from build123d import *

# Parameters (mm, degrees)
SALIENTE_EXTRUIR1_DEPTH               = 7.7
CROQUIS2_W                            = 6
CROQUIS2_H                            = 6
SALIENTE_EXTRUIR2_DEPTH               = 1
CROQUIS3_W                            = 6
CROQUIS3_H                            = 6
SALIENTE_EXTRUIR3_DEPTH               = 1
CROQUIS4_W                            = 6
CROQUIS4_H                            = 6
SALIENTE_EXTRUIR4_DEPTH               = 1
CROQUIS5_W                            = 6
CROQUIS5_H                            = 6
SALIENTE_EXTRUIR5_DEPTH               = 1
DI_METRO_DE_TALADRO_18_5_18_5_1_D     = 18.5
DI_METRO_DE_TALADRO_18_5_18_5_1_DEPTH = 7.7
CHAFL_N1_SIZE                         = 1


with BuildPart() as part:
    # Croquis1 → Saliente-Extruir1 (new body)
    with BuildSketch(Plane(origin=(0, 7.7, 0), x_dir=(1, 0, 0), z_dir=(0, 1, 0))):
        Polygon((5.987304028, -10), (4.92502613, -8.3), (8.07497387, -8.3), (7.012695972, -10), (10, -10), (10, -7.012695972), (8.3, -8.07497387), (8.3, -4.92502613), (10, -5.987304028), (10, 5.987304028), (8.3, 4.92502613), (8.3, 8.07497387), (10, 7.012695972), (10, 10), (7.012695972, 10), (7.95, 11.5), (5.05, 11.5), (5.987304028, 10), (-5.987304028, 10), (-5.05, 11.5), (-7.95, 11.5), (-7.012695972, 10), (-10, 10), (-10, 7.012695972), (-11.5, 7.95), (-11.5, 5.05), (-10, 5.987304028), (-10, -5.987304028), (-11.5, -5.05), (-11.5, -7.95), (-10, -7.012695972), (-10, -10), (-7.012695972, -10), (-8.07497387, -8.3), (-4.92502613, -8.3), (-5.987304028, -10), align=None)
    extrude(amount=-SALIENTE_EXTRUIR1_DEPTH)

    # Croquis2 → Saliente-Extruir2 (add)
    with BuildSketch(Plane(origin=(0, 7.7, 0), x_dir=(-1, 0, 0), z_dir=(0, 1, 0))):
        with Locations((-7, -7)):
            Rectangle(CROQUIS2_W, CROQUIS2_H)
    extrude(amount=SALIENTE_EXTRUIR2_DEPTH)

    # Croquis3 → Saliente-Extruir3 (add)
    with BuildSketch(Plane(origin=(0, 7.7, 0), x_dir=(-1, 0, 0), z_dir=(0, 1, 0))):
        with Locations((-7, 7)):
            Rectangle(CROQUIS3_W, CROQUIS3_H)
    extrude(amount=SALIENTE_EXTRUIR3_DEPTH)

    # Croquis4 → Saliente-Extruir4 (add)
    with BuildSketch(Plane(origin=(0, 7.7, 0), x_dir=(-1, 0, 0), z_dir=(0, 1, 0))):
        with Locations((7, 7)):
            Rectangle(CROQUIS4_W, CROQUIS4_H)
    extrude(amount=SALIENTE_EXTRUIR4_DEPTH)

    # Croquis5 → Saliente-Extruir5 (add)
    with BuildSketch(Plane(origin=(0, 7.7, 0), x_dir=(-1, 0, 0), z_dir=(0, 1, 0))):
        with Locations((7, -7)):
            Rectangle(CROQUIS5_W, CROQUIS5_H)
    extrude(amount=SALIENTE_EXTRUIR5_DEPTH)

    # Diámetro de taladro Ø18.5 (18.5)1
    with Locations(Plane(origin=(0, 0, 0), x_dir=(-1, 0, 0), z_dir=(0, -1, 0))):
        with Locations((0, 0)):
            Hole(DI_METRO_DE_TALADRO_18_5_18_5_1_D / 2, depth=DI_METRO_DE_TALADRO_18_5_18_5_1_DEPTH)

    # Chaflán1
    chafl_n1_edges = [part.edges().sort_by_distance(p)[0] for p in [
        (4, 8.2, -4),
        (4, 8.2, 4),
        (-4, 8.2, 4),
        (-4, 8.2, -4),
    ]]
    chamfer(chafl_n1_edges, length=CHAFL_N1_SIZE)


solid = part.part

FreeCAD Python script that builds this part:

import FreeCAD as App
import Part
import Sketcher

V = App.Vector
Q = App.Units.Quantity


def edges_at(feature, points):
    """Names of the edges that pass closest to the given points."""
    edges = feature.Shape.Edges
    near = lambda p: min(range(len(edges)), key=lambda i: edges[i].distToShape(Part.Vertex(*p))[0])
    return sorted({f"Edge{near(p) + 1}" for p in points})

doc = App.newDocument("Part")
body = doc.addObject("PartDesign::Body", "Body")

# Sketch on XZ plane
sketch1 = doc.addObject("Sketcher::SketchObject", "Sketch")
body.addObject(sketch1)
sketch1.AttachmentSupport = (doc.XZ_Plane, [""])
sketch1.MapMode = "FlatFace"
sketch1.AttachmentOffset = App.Placement(V(0, 0, -7.7), App.Rotation())
sketch1.addGeometry([
    Part.LineSegment(V(6, 10, 0), V(4.9, 8.3, 0)),  # 0
    Part.LineSegment(V(4.9, 8.3, 0), V(8.1, 8.3, 0)),  # 1
    Part.LineSegment(V(8.1, 8.3, 0), V(7, 10, 0)),  # 2
    Part.LineSegment(V(7, 10, 0), V(10, 10, 0)),  # 3
    Part.LineSegment(V(10, 10, 0), V(10, 7, 0)),  # 4
    Part.LineSegment(V(10, 7, 0), V(8.3, 8.1, 0)),  # 5
    Part.LineSegment(V(8.3, 8.1, 0), V(8.3, 4.9, 0)),  # 6
    Part.LineSegment(V(8.3, 4.9, 0), V(10, 6, 0)),  # 7
    Part.LineSegment(V(10, 6, 0), V(10, -6, 0)),  # 8
    Part.LineSegment(V(10, -6, 0), V(8.3, -4.9, 0)),  # 9
    Part.LineSegment(V(8.3, -4.9, 0), V(8.3, -8.1, 0)),  # 10
    Part.LineSegment(V(8.3, -8.1, 0), V(10, -7, 0)),  # 11
    Part.LineSegment(V(10, -7, 0), V(10, -10, 0)),  # 12
    Part.LineSegment(V(10, -10, 0), V(7, -10, 0)),  # 13
    Part.LineSegment(V(7, -10, 0), V(8, -11.5, 0)),  # 14
    Part.LineSegment(V(8, -11.5, 0), V(5, -11.5, 0)),  # 15
    Part.LineSegment(V(5, -11.5, 0), V(6, -10, 0)),  # 16
    Part.LineSegment(V(6, -10, 0), V(-6, -10, 0)),  # 17
    Part.LineSegment(V(-6, -10, 0), V(-5, -11.5, 0)),  # 18
    Part.LineSegment(V(-5, -11.5, 0), V(-8, -11.5, 0)),  # 19
    Part.LineSegment(V(-8, -11.5, 0), V(-7, -10, 0)),  # 20
    Part.LineSegment(V(-7, -10, 0), V(-10, -10, 0)),  # 21
    Part.LineSegment(V(-10, -10, 0), V(-10, -7, 0)),  # 22
    Part.LineSegment(V(-10, -7, 0), V(-11.5, -8, 0)),  # 23
    Part.LineSegment(V(-11.5, -8, 0), V(-11.5, -5, 0)),  # 24
    Part.LineSegment(V(-11.5, -5, 0), V(-10, -6, 0)),  # 25
    Part.LineSegment(V(-10, -6, 0), V(-10, 6, 0)),  # 26
    Part.LineSegment(V(-10, 6, 0), V(-11.5, 5, 0)),  # 27
    Part.LineSegment(V(-11.5, 5, 0), V(-11.5, 8, 0)),  # 28
    Part.LineSegment(V(-11.5, 8, 0), V(-10, 7, 0)),  # 29
    Part.LineSegment(V(-10, 7, 0), V(-10, 10, 0)),  # 30
    Part.LineSegment(V(-10, 10, 0), V(-7, 10, 0)),  # 31
    Part.LineSegment(V(-7, 10, 0), V(-8.1, 8.3, 0)),  # 32
    Part.LineSegment(V(-8.1, 8.3, 0), V(-4.9, 8.3, 0)),  # 33
    Part.LineSegment(V(-4.9, 8.3, 0), V(-6, 10, 0)),  # 34
    Part.LineSegment(V(-6, 10, 0), V(6, 10, 0)),  # 35
], False)
sketch1.addConstraint([
    Sketcher.Constraint("Coincident", 0, 2, 1, 1),
    Sketcher.Constraint("Coincident", 1, 2, 2, 1),
    Sketcher.Constraint("Coincident", 2, 2, 3, 1),
    Sketcher.Constraint("Coincident", 3, 2, 4, 1),
    Sketcher.Constraint("Coincident", 4, 2, 5, 1),
    Sketcher.Constraint("Coincident", 5, 2, 6, 1),
    Sketcher.Constraint("Coincident", 6, 2, 7, 1),
    Sketcher.Constraint("Coincident", 7, 2, 8, 1),
    Sketcher.Constraint("Coincident", 8, 2, 9, 1),
    Sketcher.Constraint("Coincident", 9, 2, 10, 1),
    Sketcher.Constraint("Coincident", 10, 2, 11, 1),
    Sketcher.Constraint("Coincident", 11, 2, 12, 1),
    Sketcher.Constraint("Coincident", 12, 2, 13, 1),
    Sketcher.Constraint("Coincident", 13, 2, 14, 1),
    Sketcher.Constraint("Coincident", 14, 2, 15, 1),
    Sketcher.Constraint("Coincident", 15, 2, 16, 1),
    Sketcher.Constraint("Coincident", 16, 2, 17, 1),
    Sketcher.Constraint("Coincident", 17, 2, 18, 1),
    Sketcher.Constraint("Coincident", 18, 2, 19, 1),
    Sketcher.Constraint("Coincident", 19, 2, 20, 1),
    Sketcher.Constraint("Coincident", 20, 2, 21, 1),
    Sketcher.Constraint("Coincident", 21, 2, 22, 1),
    Sketcher.Constraint("Coincident", 22, 2, 23, 1),
    Sketcher.Constraint("Coincident", 23, 2, 24, 1),
    Sketcher.Constraint("Coincident", 24, 2, 25, 1),
    Sketcher.Constraint("Coincident", 25, 2, 26, 1),
    Sketcher.Constraint("Coincident", 26, 2, 27, 1),
    Sketcher.Constraint("Coincident", 27, 2, 28, 1),
    Sketcher.Constraint("Coincident", 28, 2, 29, 1),
    Sketcher.Constraint("Coincident", 29, 2, 30, 1),
    Sketcher.Constraint("Coincident", 30, 2, 31, 1),
    Sketcher.Constraint("Coincident", 31, 2, 32, 1),
    Sketcher.Constraint("Coincident", 32, 2, 33, 1),
    Sketcher.Constraint("Coincident", 33, 2, 34, 1),
    Sketcher.Constraint("Coincident", 34, 2, 35, 1),
    Sketcher.Constraint("Coincident", 35, 2, 0, 1),
    Sketcher.Constraint("Horizontal", 1),
    Sketcher.Constraint("Horizontal", 3),
    Sketcher.Constraint("Vertical", 4),
    Sketcher.Constraint("Vertical", 6),
    Sketcher.Constraint("Vertical", 8),
    Sketcher.Constraint("Vertical", 10),
    Sketcher.Constraint("Vertical", 12),
    Sketcher.Constraint("Horizontal", 13),
    Sketcher.Constraint("Horizontal", 15),
    Sketcher.Constraint("Horizontal", 17),
    Sketcher.Constraint("Horizontal", 19),
    Sketcher.Constraint("Horizontal", 21),
    Sketcher.Constraint("Vertical", 22),
    Sketcher.Constraint("Vertical", 24),
    Sketcher.Constraint("Vertical", 26),
    Sketcher.Constraint("Vertical", 28),
    Sketcher.Constraint("Vertical", 30),
    Sketcher.Constraint("Horizontal", 31),
    Sketcher.Constraint("Horizontal", 33),
    Sketcher.Constraint("Horizontal", 35),
    Sketcher.Constraint("Symmetric", 2, 2, 20, 2, -1, 1),
    Sketcher.Constraint("Symmetric", 4, 2, 22, 2, -1, 1),
    Sketcher.Constraint("Symmetric", 7, 2, 25, 2, -1, 1),
    Sketcher.Constraint("Symmetric", 11, 2, 29, 2, -1, 1),
    Sketcher.Constraint("Symmetric", 13, 2, 31, 2, -1, 1),
    Sketcher.Constraint("Symmetric", 16, 2, 34, 2, -1, 1),
    Sketcher.Constraint("Symmetric", 15, 2, 18, 2, -2),
    Sketcher.Constraint("Symmetric", 13, 2, 20, 2, -2),
    Sketcher.Constraint("Symmetric", 11, 2, 22, 2, -2),
    Sketcher.Constraint("Symmetric", 1, 2, 32, 2, -2),
    Sketcher.Constraint("Symmetric", 6, 2, 9, 2, -1),
    Sketcher.Constraint("Symmetric", 24, 2, 27, 2, -1),
    Sketcher.Constraint("Perpendicular", 0, 5),
    Sketcher.Constraint("Perpendicular", 2, 7),
    Sketcher.Constraint("Parallel", 5, 9),
    Sketcher.Constraint("Parallel", 7, 11),
    Sketcher.Constraint("Perpendicular", 11, 14),
    Sketcher.Constraint("Perpendicular", 9, 16),
    Sketcher.Constraint("Parallel", 14, 18),
    Sketcher.Constraint("Parallel", 16, 20),
    Sketcher.Constraint("Perpendicular", 18, 23),
    Sketcher.Constraint("Perpendicular", 20, 25),
    Sketcher.Constraint("Parallel", 23, 27),
    Sketcher.Constraint("Parallel", 25, 29),
    Sketcher.Constraint("Perpendicular", 29, 32),
    Sketcher.Constraint("Perpendicular", 27, 34),
    Sketcher.Constraint("Horizontal", 13, 2, 16, 2),
    Sketcher.Constraint("Vertical", 4, 2, 7, 2),
    Sketcher.Constraint("Vertical", 16, 2, 35, 2),
    Sketcher.Constraint("Equal", 31, 4),
    Sketcher.Constraint("Equal", 33, 6),
    Sketcher.Constraint("Equal", 35, 8),
    Sketcher.Constraint("Equal", 19, 24),
    Sketcher.Constraint("Equal", 2, 5),
    Sketcher.Constraint("Angle", 0, Q("-122 deg")),
    Sketcher.Constraint("DistanceX", 15, 2, 15, 1, 2.9),
    Sketcher.Constraint("DistanceY", -1, 1, 2, 2, 10.0),
    Sketcher.Constraint("DistanceY", 8, 2, 4, 2, 13.0),
    Sketcher.Constraint("DistanceY", -1, 1, 0, 2, 8.3),
    Sketcher.Constraint("DistanceY", 14, 2, -1, 1, 11.5),
])
pad1 = doc.addObject("PartDesign::Pad", "Pad")
body.addObject(pad1)
pad1.Profile = sketch1
pad1.Length = 7.7

# Sketch on XZ plane
sketch2 = doc.addObject("Sketcher::SketchObject", "Sketch001")
body.addObject(sketch2)
sketch2.AttachmentSupport = (doc.XZ_Plane, [""])
sketch2.MapMode = "FlatFace"
sketch2.AttachmentOffset = App.Placement(V(0, 0, -7.7), App.Rotation())
sketch2.addGeometry([
    Part.LineSegment(V(10, -4, 0), V(10, -10, 0)),
    Part.LineSegment(V(10, -10, 0), V(4, -10, 0)),
    Part.LineSegment(V(4, -10, 0), V(4, -4, 0)),
    Part.LineSegment(V(4, -4, 0), V(10, -4, 0)),
], False)
sketch2.addConstraint([
    Sketcher.Constraint("Coincident", 0, 2, 1, 1),
    Sketcher.Constraint("Coincident", 1, 2, 2, 1),
    Sketcher.Constraint("Coincident", 2, 2, 3, 1),
    Sketcher.Constraint("Coincident", 3, 2, 0, 1),
    Sketcher.Constraint("Vertical", 0),
    Sketcher.Constraint("Horizontal", 1),
    Sketcher.Constraint("Vertical", 2),
    Sketcher.Constraint("Horizontal", 3),
    Sketcher.Constraint("Equal", 3, 0),
    Sketcher.Constraint("DistanceX", 1, 2, 1, 1, 6.0),
    Sketcher.Constraint("DistanceX", -1, 1, 0, 2, 10.0),
    Sketcher.Constraint("DistanceY", 0, 2, -1, 1, 10.0),
])
pad2 = doc.addObject("PartDesign::Pad", "Pad001")
body.addObject(pad2)
pad2.Profile = sketch2
pad2.Length = 1
pad2.Reversed = True

# Sketch on XZ plane
sketch3 = doc.addObject("Sketcher::SketchObject", "Sketch002")
body.addObject(sketch3)
sketch3.AttachmentSupport = (doc.XZ_Plane, [""])
sketch3.MapMode = "FlatFace"
sketch3.AttachmentOffset = App.Placement(V(0, 0, -7.7), App.Rotation())
sketch3.addGeometry([
    Part.LineSegment(V(10, 10, 0), V(10, 4, 0)),
    Part.LineSegment(V(10, 4, 0), V(4, 4, 0)),
    Part.LineSegment(V(4, 4, 0), V(4, 10, 0)),
    Part.LineSegment(V(4, 10, 0), V(10, 10, 0)),
], False)
sketch3.addConstraint([
    Sketcher.Constraint("Coincident", 0, 2, 1, 1),
    Sketcher.Constraint("Coincident", 1, 2, 2, 1),
    Sketcher.Constraint("Coincident", 2, 2, 3, 1),
    Sketcher.Constraint("Coincident", 3, 2, 0, 1),
    Sketcher.Constraint("Vertical", 0),
    Sketcher.Constraint("Horizontal", 1),
    Sketcher.Constraint("Vertical", 2),
    Sketcher.Constraint("Horizontal", 3),
    Sketcher.Constraint("Equal", 3, 0),
    Sketcher.Constraint("DistanceX", 1, 2, 1, 1, 6.0),
    Sketcher.Constraint("DistanceX", -1, 1, 0, 2, 10.0),
    Sketcher.Constraint("DistanceY", -1, 1, 0, 2, 4.0),
])
pad3 = doc.addObject("PartDesign::Pad", "Pad002")
body.addObject(pad3)
pad3.Profile = sketch3
pad3.Length = 1
pad3.Reversed = True

# Sketch on XZ plane
sketch4 = doc.addObject("Sketcher::SketchObject", "Sketch003")
body.addObject(sketch4)
sketch4.AttachmentSupport = (doc.XZ_Plane, [""])
sketch4.MapMode = "FlatFace"
sketch4.AttachmentOffset = App.Placement(V(0, 0, -7.7), App.Rotation())
sketch4.addGeometry([
    Part.LineSegment(V(-4, 10, 0), V(-4, 4, 0)),
    Part.LineSegment(V(-4, 4, 0), V(-10, 4, 0)),
    Part.LineSegment(V(-10, 4, 0), V(-10, 10, 0)),
    Part.LineSegment(V(-10, 10, 0), V(-4, 10, 0)),
], False)
sketch4.addConstraint([
    Sketcher.Constraint("Coincident", 0, 2, 1, 1),
    Sketcher.Constraint("Coincident", 1, 2, 2, 1),
    Sketcher.Constraint("Coincident", 2, 2, 3, 1),
    Sketcher.Constraint("Coincident", 3, 2, 0, 1),
    Sketcher.Constraint("Vertical", 0),
    Sketcher.Constraint("Horizontal", 1),
    Sketcher.Constraint("Vertical", 2),
    Sketcher.Constraint("Horizontal", 3),
    Sketcher.Constraint("Equal", 3, 0),
    Sketcher.Constraint("DistanceX", 1, 2, 1, 1, 6.0),
    Sketcher.Constraint("DistanceX", 0, 2, -1, 1, 4.0),
    Sketcher.Constraint("DistanceY", -1, 1, 0, 2, 4.0),
])
pad4 = doc.addObject("PartDesign::Pad", "Pad003")
body.addObject(pad4)
pad4.Profile = sketch4
pad4.Length = 1
pad4.Reversed = True

# Sketch on XZ plane
sketch5 = doc.addObject("Sketcher::SketchObject", "Sketch004")
body.addObject(sketch5)
sketch5.AttachmentSupport = (doc.XZ_Plane, [""])
sketch5.MapMode = "FlatFace"
sketch5.AttachmentOffset = App.Placement(V(0, 0, -7.7), App.Rotation())
sketch5.addGeometry([
    Part.LineSegment(V(-4, -4, 0), V(-4, -10, 0)),
    Part.LineSegment(V(-4, -10, 0), V(-10, -10, 0)),
    Part.LineSegment(V(-10, -10, 0), V(-10, -4, 0)),
    Part.LineSegment(V(-10, -4, 0), V(-4, -4, 0)),
], False)
sketch5.addConstraint([
    Sketcher.Constraint("Coincident", 0, 2, 1, 1),
    Sketcher.Constraint("Coincident", 1, 2, 2, 1),
    Sketcher.Constraint("Coincident", 2, 2, 3, 1),
    Sketcher.Constraint("Coincident", 3, 2, 0, 1),
    Sketcher.Constraint("Vertical", 0),
    Sketcher.Constraint("Horizontal", 1),
    Sketcher.Constraint("Vertical", 2),
    Sketcher.Constraint("Horizontal", 3),
    Sketcher.Constraint("Equal", 3, 0),
    Sketcher.Constraint("DistanceX", 1, 2, 1, 1, 6.0),
    Sketcher.Constraint("DistanceX", 0, 2, -1, 1, 4.0),
    Sketcher.Constraint("DistanceY", 0, 2, -1, 1, 10.0),
])
pad5 = doc.addObject("PartDesign::Pad", "Pad004")
body.addObject(pad5)
pad5.Profile = sketch5
pad5.Length = 1
pad5.Reversed = True

# Sketch on XZ plane
sketch6 = doc.addObject("Sketcher::SketchObject", "Sketch005")
body.addObject(sketch6)
sketch6.AttachmentSupport = (doc.XZ_Plane, [""])
sketch6.MapMode = "FlatFace"
sketch6.addGeometry(Part.Circle(V(0, 0, 0), V(0, 0, 1), 9), False)
sketch6.addConstraint([
    Sketcher.Constraint("Coincident", 0, 3, -1, 1),
    Sketcher.Constraint("Diameter", 0, 18.5),
])
doc.recompute()
hole = doc.addObject("PartDesign::Hole", "Hole")
body.addObject(hole)
hole.Profile = sketch6
hole.ThreadType = "None"
hole.Diameter = 18.5
hole.DepthType = "Dimension"
hole.Depth = 7.7
hole.DrillPoint = "Flat"
doc.recompute()

chamfer = doc.addObject("PartDesign::Chamfer", "Chamfer")
body.addObject(chamfer)
chamfer.Base = (hole, edges_at(hole, [
    (4, 8.2, -4),
    (4, 8.2, 4),
    (-4, 8.2, 4),
    (-4, 8.2, -4),
]))
chamfer.Size = 1

doc.recompute()
